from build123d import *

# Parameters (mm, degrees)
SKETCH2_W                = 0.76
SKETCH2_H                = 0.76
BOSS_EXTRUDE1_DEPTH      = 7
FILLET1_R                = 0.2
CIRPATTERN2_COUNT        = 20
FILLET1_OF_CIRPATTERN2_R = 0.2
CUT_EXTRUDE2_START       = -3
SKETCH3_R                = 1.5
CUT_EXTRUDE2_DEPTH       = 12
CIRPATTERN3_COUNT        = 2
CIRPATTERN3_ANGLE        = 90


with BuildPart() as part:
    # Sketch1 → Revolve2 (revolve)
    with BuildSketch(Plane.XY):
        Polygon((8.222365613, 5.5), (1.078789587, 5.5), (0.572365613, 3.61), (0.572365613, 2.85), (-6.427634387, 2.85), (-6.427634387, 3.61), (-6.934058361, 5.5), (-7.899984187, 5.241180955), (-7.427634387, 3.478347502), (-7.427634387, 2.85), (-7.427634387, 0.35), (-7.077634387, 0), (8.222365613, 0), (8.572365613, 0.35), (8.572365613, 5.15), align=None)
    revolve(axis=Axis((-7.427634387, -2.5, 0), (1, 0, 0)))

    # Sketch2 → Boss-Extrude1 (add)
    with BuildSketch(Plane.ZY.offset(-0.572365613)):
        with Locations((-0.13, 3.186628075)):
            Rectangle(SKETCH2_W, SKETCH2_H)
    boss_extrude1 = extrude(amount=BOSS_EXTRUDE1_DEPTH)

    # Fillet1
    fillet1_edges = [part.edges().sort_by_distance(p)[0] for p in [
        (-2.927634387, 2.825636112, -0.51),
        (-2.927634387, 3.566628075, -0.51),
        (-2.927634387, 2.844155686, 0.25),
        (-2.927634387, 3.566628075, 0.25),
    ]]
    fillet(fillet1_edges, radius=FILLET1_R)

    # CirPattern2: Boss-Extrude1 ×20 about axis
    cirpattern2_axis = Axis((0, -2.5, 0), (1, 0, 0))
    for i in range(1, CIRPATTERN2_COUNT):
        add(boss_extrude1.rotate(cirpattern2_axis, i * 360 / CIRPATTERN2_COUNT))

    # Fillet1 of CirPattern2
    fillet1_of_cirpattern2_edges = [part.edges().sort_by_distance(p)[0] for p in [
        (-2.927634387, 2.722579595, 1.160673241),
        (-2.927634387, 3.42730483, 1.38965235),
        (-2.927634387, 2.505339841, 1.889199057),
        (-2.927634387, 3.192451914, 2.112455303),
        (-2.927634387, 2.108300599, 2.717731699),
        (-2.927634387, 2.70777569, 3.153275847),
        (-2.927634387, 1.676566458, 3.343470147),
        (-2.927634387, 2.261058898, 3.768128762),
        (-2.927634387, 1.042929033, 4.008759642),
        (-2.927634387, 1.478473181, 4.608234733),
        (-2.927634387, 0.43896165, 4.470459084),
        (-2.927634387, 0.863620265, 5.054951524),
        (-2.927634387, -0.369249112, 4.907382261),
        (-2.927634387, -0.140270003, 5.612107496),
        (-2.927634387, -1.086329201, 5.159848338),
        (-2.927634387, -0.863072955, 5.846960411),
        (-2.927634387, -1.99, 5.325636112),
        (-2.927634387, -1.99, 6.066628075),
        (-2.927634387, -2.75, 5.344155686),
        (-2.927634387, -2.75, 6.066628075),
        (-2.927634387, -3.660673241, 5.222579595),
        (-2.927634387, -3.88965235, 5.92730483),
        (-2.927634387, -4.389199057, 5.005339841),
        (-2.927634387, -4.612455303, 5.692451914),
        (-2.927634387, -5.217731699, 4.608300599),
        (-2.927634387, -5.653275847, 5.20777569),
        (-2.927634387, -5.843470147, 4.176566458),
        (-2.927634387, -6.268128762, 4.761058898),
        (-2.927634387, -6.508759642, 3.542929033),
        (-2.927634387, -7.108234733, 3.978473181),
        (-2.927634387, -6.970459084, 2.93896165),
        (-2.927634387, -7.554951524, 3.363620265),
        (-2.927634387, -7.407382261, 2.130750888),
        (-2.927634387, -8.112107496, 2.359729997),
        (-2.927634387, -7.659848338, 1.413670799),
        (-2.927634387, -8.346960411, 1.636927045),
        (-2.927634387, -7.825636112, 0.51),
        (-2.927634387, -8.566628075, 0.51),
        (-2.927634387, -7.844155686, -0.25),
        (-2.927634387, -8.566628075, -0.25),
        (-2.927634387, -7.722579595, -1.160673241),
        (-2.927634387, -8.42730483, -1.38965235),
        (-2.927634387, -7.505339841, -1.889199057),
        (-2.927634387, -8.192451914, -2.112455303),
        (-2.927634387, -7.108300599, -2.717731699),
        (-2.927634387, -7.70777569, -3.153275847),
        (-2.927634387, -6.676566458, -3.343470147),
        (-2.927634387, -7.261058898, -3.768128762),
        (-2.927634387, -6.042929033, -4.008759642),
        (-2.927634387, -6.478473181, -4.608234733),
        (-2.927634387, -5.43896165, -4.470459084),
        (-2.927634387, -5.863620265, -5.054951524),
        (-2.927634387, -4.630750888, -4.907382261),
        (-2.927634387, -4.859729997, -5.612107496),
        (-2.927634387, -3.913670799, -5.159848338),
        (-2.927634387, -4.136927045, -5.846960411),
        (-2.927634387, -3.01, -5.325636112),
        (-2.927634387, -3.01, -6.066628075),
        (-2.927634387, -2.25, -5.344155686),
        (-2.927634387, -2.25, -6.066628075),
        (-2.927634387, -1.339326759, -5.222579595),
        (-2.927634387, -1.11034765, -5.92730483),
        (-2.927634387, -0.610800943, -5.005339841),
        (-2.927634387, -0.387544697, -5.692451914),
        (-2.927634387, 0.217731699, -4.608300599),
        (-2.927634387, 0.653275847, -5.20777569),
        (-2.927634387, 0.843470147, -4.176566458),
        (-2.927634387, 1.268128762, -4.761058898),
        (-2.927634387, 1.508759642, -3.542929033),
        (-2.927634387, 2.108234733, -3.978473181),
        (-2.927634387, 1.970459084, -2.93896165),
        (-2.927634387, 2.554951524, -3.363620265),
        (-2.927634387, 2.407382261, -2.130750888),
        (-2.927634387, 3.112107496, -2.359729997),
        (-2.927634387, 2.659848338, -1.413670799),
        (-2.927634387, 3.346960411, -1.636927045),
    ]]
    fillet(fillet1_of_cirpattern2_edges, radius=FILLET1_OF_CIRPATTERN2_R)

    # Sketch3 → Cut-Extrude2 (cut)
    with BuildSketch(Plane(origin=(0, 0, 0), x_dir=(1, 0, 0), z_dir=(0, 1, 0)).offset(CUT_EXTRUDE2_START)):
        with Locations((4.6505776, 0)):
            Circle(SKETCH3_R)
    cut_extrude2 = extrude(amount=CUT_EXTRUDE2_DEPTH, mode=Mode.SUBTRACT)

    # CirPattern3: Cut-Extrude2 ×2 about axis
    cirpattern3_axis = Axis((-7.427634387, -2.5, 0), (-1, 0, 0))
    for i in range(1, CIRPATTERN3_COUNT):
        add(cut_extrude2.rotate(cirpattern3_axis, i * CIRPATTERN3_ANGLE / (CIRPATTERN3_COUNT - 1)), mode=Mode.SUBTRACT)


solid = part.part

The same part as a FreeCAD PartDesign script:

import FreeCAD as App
import Part
import Sketcher
Q = App.Units.Quantity


def edges_at(feature, points):
    """Names of the edges that pass closest to the given points."""
    edges = feature.Shape.Edges
    near = lambda p: min(range(len(edges)), key=lambda i: edges[i].distToShape(Part.Vertex(*p))[0])
    return sorted({f"Edge{near(p) + 1}" for p in points})

doc = App.newDocument("Part")
body = doc.addObject("PartDesign::Body", "Body")

# Sketch on XY plane
sketch1 = doc.addObject("Sketcher::SketchObject", "Sketch")
body.addObject(sketch1)
sketch1.AttachmentSupport = (doc.XY_Plane, [""])
sketch1.MapMode = "FlatFace"
sketch1.addGeometry([
    Part.LineSegment(App.Vector(8.22, 5.5, 0), App.Vector(1.08, 5.5, 0)),  # 0
    Part.LineSegment(App.Vector(1.08, 5.5, 0), App.Vector(0.57, 3.61, 0)),  # 1
    Part.LineSegment(App.Vector(0.57, 3.61, 0), App.Vector(0.57, 2.85, 0)),  # 2
    Part.LineSegment(App.Vector(0.57, 2.85, 0), App.Vector(-6.43, 2.85, 0)),  # 3
    Part.LineSegment(App.Vector(-6.43, 2.85, 0), App.Vector(-6.43, 3.61, 0)),  # 4
    Part.LineSegment(App.Vector(-6.43, 3.61, 0), App.Vector(-6.93, 5.5, 0)),  # 5
    Part.LineSegment(App.Vector(-6.93, 5.5, 0), App.Vector(-7.9, 5.24, 0)),  # 6
    Part.LineSegment(App.Vector(-7.9, 5.24, 0), App.Vector(-7.43, 3.48, 0)),  # 7
    Part.LineSegment(App.Vector(-7.43, 3.48, 0), App.Vector(-7.43, 0.35, 0)),  # 8
    Part.LineSegment(App.Vector(-7.43, 0.35, 0), App.Vector(-7.08, 0, 0)),  # 9
    Part.LineSegment(App.Vector(-7.08, 0, 0), App.Vector(8.22, 0, 0)),  # 10
    Part.LineSegment(App.Vector(8.22, 0, 0), App.Vector(8.57, 0.35, 0)),  # 11
    Part.LineSegment(App.Vector(8.57, 0.35, 0), App.Vector(8.57, 5.15, 0)),  # 12
    Part.LineSegment(App.Vector(8.57, 5.15, 0), App.Vector(8.22, 5.5, 0)),  # 13
], False)
sketch1.addGeometry(Part.LineSegment(App.Vector(-7.9, -2.5, 0), App.Vector(8.57, -2.5, 0)), True)  # axis
sketch1.addConstraint([
    Sketcher.Constraint("Coincident", 0, 2, 1, 1),
    Sketcher.Constraint("Coincident", 1, 2, 2, 1),
    Sketcher.Constraint("Coincident", 2, 2, 3, 1),
    Sketcher.Constraint("Coincident", 3, 2, 4, 1),
    Sketcher.Constraint("Coincident", 4, 2, 5, 1),
    Sketcher.Constraint("Coincident", 5, 2, 6, 1),
    Sketcher.Constraint("Coincident", 6, 2, 7, 1),
    Sketcher.Constraint("Coincident", 7, 2, 8, 1),
    Sketcher.Constraint("Coincident", 8, 2, 9, 1),
    Sketcher.Constraint("Coincident", 9, 2, 10, 1),
    Sketcher.Constraint("Coincident", 10, 2, 11, 1),
    Sketcher.Constraint("Coincident", 11, 2, 12, 1),
    Sketcher.Constraint("Coincident", 12, 2, 13, 1),
    Sketcher.Constraint("Coincident", 13, 2, 0, 1),
    Sketcher.Constraint("Horizontal", 0),
    Sketcher.Constraint("Vertical", 2),
    Sketcher.Constraint("Horizontal", 3),
    Sketcher.Constraint("Vertical", 4),
    Sketcher.Constraint("Vertical", 8),
    Sketcher.Constraint("Horizontal", 10),
    Sketcher.Constraint("Vertical", 12),
    Sketcher.Constraint("Horizontal", 14),
    Sketcher.Constraint("PointOnObject", 9, 2, -1),
    Sketcher.Constraint("Perpendicular", 5, 6),
    Sketcher.Constraint("Perpendicular", 6, 7),
    Sketcher.Constraint("Perpendicular", 9, 11),
    Sketcher.Constraint("Perpendicular", 11, 13),
    Sketcher.Constraint("Horizontal", 1, 2, 4, 2),
    Sketcher.Constraint("Horizontal", 0, 2, 5, 2),
    Sketcher.Constraint("Horizontal", 8, 2, 11, 2),
    Sketcher.Constraint("Vertical", 10, 2, 13, 2),
    Sketcher.Constraint("Vertical", 6, 2, 14, 1),
    Sketcher.Constraint("Vertical", 12, 2, 14, 2),
    Sketcher.Constraint("Equal", 1, 5),
    Sketcher.Constraint("Equal", 9, 11),
    Sketcher.Constraint("DistanceX", 3, 2, 3, 1, 7.0),
    Sketcher.Constraint("Angle", 1, Q("-105 deg")),
    Sketcher.Constraint("Distance", 6, 1.0),
    Sketcher.Constraint("DistanceX", 10, 1, 10, 2, 15.3),
    Sketcher.Constraint("DistanceY", 12, 1, 12, 2, 4.8),
    Sketcher.Constraint("DistanceX", 7, 2, 4, 2, 1.0),
    Sketcher.Constraint("DistanceX", 2, 2, 11, 2, 8.0),
    Sketcher.Constraint("DistanceY", 14, 2, 13, 2, 8.0),
    Sketcher.Constraint("DistanceY", 2, 2, 2, 1, 0.76),
    Sketcher.Constraint("DistanceY", 8, 2, 3, 2, 2.5),
    Sketcher.Constraint("DistanceX", -1, 1, 0, 2, 1.07879),
])
revolution = doc.addObject("PartDesign::Revolution", "Revolution")
body.addObject(revolution)
revolution.Profile = sketch1
revolution.ReferenceAxis = (sketch1, ["Axis0"])
revolution.Angle = 360

# Sketch on YZ plane
sketch2 = doc.addObject("Sketcher::SketchObject", "Sketch001")
body.addObject(sketch2)
sketch2.AttachmentSupport = (doc.YZ_Plane, [""])
sketch2.MapMode = "FlatFace"
sketch2.AttachmentOffset = App.Placement(App.Vector(0, 0, 0.572366), App.Rotation())
sketch2.addGeometry([
    Part.LineSegment(App.Vector(3.6, -0.5, 0), App.Vector(2.8, -0.5, 0)),
    Part.LineSegment(App.Vector(2.8, -0.5, 0), App.Vector(2.8, 0.2, 0)),
    Part.LineSegment(App.Vector(2.8, 0.2, 0), App.Vector(3.6, 0.2, 0)),
    Part.LineSegment(App.Vector(3.6, 0.2, 0), App.Vector(3.6, -0.5, 0)),
], False)
sketch2.addConstraint([
    Sketcher.Constraint("Coincident", 0, 2, 1, 1),
    Sketcher.Constraint("Coincident", 1, 2, 2, 1),
    Sketcher.Constraint("Coincident", 2, 2, 3, 1),
    Sketcher.Constraint("Coincident", 3, 2, 0, 1),
    Sketcher.Constraint("Horizontal", 0),
    Sketcher.Constraint("Vertical", 1),
    Sketcher.Constraint("Horizontal", 2),
    Sketcher.Constraint("Vertical", 3),
    Sketcher.Constraint("Equal", 2, 1),
    Sketcher.Constraint("DistanceX", 0, 2, 0, 1, 0.76),
    Sketcher.Constraint("DistanceY", 0, 2, -1, 1, 0.51),
    Sketcher.Constraint("DistanceX", -1, 1, 0, 2, 2.806628),
])
pad1 = doc.addObject("PartDesign::Pad", "Pad")
body.addObject(pad1)
pad1.Profile = sketch2
pad1.Length = 7
pad1.Reversed = True
doc.recompute()

fillet = doc.addObject("PartDesign::Fillet", "Fillet")
body.addObject(fillet)
fillet.Base = (pad1, edges_at(pad1, [
    (-2.928, 2.826, -0.51),
    (-2.928, 3.567, -0.51),
    (-2.928, 2.844, 0.25),
    (-2.928, 3.567, 0.25),
]))
fillet.Radius = 0.2
doc.recompute()

datumline = doc.addObject("PartDesign::Line", "DatumLine")
body.addObject(datumline)
datumline.Placement = App.Placement(App.Vector(0, -2.5, 0), App.Rotation(App.Vector(0, 0, 1), App.Vector(1, 0, 0)))
polarpattern = doc.addObject("PartDesign::PolarPattern", "PolarPattern")
body.addObject(polarpattern)
polarpattern.Originals = [pad1]
polarpattern.Axis = (datumline, [""])
polarpattern.Angle = 360
polarpattern.Occurrences = 20
body.Tip = polarpattern
doc.recompute()

fillet2 = doc.addObject("PartDesign::Fillet", "Fillet001")
body.addObject(fillet2)
fillet2.Base = (polarpattern, edges_at(polarpattern, [
    (-2.928, 2.723, 1.161),
    (-2.928, 3.427, 1.39),
    (-2.928, 2.505, 1.889),
    (-2.928, 3.192, 2.112),
    (-2.928, 2.108, 2.718),
    (-2.928, 2.708, 3.153),
    (-2.928, 1.677, 3.343),
    (-2.928, 2.261, 3.768),
    (-2.928, 1.043, 4.009),
    (-2.928, 1.478, 4.608),
    (-2.928, 0.439, 4.47),
    (-2.928, 0.864, 5.055),
    (-2.928, -0.369, 4.907),
    (-2.928, -0.14, 5.612),
    (-2.928, -1.086, 5.16),
    (-2.928, -0.863, 5.847),
    (-2.928, -1.99, 5.326),
    (-2.928, -1.99, 6.067),
    (-2.928, -2.75, 5.344),
    (-2.928, -2.75, 6.067),
    (-2.928, -3.661, 5.223),
    (-2.928, -3.89, 5.927),
    (-2.928, -4.389, 5.005),
    (-2.928, -4.612, 5.692),
    (-2.928, -5.218, 4.608),
    (-2.928, -5.653, 5.208),
    (-2.928, -5.843, 4.177),
    (-2.928, -6.268, 4.761),
    (-2.928, -6.509, 3.543),
    (-2.928, -7.108, 3.978),
    (-2.928, -6.97, 2.939),
    (-2.928, -7.555, 3.364),
    (-2.928, -7.407, 2.131),
    (-2.928, -8.112, 2.36),
    (-2.928, -7.66, 1.414),
    (-2.928, -8.347, 1.637),
    (-2.928, -7.826, 0.51),
    (-2.928, -8.567, 0.51),
    (-2.928, -7.844, -0.25),
    (-2.928, -8.567, -0.25),
    (-2.928, -7.723, -1.161),
    (-2.928, -8.427, -1.39),
    (-2.928, -7.505, -1.889),
    (-2.928, -8.192, -2.112),
    (-2.928, -7.108, -2.718),
    (-2.928, -7.708, -3.153),
    (-2.928, -6.677, -3.343),
    (-2.928, -7.261, -3.768),
    (-2.928, -6.043, -4.009),
    (-2.928, -6.478, -4.608),
    (-2.928, -5.439, -4.47),
    (-2.928, -5.864, -5.055),
    (-2.928, -4.631, -4.907),
    (-2.928, -4.86, -5.612),
    (-2.928, -3.914, -5.16),
    (-2.928, -4.137, -5.847),
    (-2.928, -3.01, -5.326),
    (-2.928, -3.01, -6.067),
    (-2.928, -2.25, -5.344),
    (-2.928, -2.25, -6.067),
    (-2.928, -1.339, -5.223),
    (-2.928, -1.11, -5.927),
    (-2.928, -0.611, -5.005),
    (-2.928, -0.388, -5.692),
    (-2.928, 0.218, -4.608),
    (-2.928, 0.653, -5.208),
    (-2.928, 0.843, -4.177),
    (-2.928, 1.268, -4.761),
    (-2.928, 1.509, -3.543),
    (-2.928, 2.108, -3.978),
    (-2.928, 1.97, -2.939),
    (-2.928, 2.555, -3.364),
    (-2.928, 2.407, -2.131),
    (-2.928, 3.112, -2.36),
    (-2.928, 2.66, -1.414),
    (-2.928, 3.347, -1.637),
]))
fillet2.Radius = 0.2

# Sketch on XZ plane
sketch3 = doc.addObject("Sketcher::SketchObject", "Sketch002")
body.addObject(sketch3)
sketch3.AttachmentSupport = (doc.XZ_Plane, [""])
sketch3.MapMode = "FlatFace"
sketch3.AttachmentOffset = App.Placement(App.Vector(0, 0, 3), App.Rotation())
sketch3.addGeometry(Part.Circle(App.Vector(4.7, 0, 0), App.Vector(0, 0, 1), 1.5), False)
sketch3.addConstraint([
    Sketcher.Constraint("PointOnObject", 0, 3, -1),
    Sketcher.Constraint("Diameter", 0, 3.0),
    Sketcher.Constraint("DistanceX", -1, 1, 0, 3, 4.650578),
])
pocket1 = doc.addObject("PartDesign::Pocket", "Pocket")
body.addObject(pocket1)
pocket1.Profile = sketch3
pocket1.Length = 12
doc.recompute()

datumline2 = doc.addObject("PartDesign::Line", "DatumLine001")
body.addObject(datumline2)
datumline2.Placement = App.Placement(App.Vector(0, -2.5, 0), App.Rotation(App.Vector(0, 0, 1), App.Vector(-1, 0, 0)))
polarpattern2 = doc.addObject("PartDesign::PolarPattern", "PolarPattern001")
body.addObject(polarpattern2)
polarpattern2.Originals = [pocket1]
polarpattern2.Axis = (datumline2, [""])
polarpattern2.Angle = 90
polarpattern2.Occurrences = 2
body.Tip = polarpattern2

doc.recompute()
